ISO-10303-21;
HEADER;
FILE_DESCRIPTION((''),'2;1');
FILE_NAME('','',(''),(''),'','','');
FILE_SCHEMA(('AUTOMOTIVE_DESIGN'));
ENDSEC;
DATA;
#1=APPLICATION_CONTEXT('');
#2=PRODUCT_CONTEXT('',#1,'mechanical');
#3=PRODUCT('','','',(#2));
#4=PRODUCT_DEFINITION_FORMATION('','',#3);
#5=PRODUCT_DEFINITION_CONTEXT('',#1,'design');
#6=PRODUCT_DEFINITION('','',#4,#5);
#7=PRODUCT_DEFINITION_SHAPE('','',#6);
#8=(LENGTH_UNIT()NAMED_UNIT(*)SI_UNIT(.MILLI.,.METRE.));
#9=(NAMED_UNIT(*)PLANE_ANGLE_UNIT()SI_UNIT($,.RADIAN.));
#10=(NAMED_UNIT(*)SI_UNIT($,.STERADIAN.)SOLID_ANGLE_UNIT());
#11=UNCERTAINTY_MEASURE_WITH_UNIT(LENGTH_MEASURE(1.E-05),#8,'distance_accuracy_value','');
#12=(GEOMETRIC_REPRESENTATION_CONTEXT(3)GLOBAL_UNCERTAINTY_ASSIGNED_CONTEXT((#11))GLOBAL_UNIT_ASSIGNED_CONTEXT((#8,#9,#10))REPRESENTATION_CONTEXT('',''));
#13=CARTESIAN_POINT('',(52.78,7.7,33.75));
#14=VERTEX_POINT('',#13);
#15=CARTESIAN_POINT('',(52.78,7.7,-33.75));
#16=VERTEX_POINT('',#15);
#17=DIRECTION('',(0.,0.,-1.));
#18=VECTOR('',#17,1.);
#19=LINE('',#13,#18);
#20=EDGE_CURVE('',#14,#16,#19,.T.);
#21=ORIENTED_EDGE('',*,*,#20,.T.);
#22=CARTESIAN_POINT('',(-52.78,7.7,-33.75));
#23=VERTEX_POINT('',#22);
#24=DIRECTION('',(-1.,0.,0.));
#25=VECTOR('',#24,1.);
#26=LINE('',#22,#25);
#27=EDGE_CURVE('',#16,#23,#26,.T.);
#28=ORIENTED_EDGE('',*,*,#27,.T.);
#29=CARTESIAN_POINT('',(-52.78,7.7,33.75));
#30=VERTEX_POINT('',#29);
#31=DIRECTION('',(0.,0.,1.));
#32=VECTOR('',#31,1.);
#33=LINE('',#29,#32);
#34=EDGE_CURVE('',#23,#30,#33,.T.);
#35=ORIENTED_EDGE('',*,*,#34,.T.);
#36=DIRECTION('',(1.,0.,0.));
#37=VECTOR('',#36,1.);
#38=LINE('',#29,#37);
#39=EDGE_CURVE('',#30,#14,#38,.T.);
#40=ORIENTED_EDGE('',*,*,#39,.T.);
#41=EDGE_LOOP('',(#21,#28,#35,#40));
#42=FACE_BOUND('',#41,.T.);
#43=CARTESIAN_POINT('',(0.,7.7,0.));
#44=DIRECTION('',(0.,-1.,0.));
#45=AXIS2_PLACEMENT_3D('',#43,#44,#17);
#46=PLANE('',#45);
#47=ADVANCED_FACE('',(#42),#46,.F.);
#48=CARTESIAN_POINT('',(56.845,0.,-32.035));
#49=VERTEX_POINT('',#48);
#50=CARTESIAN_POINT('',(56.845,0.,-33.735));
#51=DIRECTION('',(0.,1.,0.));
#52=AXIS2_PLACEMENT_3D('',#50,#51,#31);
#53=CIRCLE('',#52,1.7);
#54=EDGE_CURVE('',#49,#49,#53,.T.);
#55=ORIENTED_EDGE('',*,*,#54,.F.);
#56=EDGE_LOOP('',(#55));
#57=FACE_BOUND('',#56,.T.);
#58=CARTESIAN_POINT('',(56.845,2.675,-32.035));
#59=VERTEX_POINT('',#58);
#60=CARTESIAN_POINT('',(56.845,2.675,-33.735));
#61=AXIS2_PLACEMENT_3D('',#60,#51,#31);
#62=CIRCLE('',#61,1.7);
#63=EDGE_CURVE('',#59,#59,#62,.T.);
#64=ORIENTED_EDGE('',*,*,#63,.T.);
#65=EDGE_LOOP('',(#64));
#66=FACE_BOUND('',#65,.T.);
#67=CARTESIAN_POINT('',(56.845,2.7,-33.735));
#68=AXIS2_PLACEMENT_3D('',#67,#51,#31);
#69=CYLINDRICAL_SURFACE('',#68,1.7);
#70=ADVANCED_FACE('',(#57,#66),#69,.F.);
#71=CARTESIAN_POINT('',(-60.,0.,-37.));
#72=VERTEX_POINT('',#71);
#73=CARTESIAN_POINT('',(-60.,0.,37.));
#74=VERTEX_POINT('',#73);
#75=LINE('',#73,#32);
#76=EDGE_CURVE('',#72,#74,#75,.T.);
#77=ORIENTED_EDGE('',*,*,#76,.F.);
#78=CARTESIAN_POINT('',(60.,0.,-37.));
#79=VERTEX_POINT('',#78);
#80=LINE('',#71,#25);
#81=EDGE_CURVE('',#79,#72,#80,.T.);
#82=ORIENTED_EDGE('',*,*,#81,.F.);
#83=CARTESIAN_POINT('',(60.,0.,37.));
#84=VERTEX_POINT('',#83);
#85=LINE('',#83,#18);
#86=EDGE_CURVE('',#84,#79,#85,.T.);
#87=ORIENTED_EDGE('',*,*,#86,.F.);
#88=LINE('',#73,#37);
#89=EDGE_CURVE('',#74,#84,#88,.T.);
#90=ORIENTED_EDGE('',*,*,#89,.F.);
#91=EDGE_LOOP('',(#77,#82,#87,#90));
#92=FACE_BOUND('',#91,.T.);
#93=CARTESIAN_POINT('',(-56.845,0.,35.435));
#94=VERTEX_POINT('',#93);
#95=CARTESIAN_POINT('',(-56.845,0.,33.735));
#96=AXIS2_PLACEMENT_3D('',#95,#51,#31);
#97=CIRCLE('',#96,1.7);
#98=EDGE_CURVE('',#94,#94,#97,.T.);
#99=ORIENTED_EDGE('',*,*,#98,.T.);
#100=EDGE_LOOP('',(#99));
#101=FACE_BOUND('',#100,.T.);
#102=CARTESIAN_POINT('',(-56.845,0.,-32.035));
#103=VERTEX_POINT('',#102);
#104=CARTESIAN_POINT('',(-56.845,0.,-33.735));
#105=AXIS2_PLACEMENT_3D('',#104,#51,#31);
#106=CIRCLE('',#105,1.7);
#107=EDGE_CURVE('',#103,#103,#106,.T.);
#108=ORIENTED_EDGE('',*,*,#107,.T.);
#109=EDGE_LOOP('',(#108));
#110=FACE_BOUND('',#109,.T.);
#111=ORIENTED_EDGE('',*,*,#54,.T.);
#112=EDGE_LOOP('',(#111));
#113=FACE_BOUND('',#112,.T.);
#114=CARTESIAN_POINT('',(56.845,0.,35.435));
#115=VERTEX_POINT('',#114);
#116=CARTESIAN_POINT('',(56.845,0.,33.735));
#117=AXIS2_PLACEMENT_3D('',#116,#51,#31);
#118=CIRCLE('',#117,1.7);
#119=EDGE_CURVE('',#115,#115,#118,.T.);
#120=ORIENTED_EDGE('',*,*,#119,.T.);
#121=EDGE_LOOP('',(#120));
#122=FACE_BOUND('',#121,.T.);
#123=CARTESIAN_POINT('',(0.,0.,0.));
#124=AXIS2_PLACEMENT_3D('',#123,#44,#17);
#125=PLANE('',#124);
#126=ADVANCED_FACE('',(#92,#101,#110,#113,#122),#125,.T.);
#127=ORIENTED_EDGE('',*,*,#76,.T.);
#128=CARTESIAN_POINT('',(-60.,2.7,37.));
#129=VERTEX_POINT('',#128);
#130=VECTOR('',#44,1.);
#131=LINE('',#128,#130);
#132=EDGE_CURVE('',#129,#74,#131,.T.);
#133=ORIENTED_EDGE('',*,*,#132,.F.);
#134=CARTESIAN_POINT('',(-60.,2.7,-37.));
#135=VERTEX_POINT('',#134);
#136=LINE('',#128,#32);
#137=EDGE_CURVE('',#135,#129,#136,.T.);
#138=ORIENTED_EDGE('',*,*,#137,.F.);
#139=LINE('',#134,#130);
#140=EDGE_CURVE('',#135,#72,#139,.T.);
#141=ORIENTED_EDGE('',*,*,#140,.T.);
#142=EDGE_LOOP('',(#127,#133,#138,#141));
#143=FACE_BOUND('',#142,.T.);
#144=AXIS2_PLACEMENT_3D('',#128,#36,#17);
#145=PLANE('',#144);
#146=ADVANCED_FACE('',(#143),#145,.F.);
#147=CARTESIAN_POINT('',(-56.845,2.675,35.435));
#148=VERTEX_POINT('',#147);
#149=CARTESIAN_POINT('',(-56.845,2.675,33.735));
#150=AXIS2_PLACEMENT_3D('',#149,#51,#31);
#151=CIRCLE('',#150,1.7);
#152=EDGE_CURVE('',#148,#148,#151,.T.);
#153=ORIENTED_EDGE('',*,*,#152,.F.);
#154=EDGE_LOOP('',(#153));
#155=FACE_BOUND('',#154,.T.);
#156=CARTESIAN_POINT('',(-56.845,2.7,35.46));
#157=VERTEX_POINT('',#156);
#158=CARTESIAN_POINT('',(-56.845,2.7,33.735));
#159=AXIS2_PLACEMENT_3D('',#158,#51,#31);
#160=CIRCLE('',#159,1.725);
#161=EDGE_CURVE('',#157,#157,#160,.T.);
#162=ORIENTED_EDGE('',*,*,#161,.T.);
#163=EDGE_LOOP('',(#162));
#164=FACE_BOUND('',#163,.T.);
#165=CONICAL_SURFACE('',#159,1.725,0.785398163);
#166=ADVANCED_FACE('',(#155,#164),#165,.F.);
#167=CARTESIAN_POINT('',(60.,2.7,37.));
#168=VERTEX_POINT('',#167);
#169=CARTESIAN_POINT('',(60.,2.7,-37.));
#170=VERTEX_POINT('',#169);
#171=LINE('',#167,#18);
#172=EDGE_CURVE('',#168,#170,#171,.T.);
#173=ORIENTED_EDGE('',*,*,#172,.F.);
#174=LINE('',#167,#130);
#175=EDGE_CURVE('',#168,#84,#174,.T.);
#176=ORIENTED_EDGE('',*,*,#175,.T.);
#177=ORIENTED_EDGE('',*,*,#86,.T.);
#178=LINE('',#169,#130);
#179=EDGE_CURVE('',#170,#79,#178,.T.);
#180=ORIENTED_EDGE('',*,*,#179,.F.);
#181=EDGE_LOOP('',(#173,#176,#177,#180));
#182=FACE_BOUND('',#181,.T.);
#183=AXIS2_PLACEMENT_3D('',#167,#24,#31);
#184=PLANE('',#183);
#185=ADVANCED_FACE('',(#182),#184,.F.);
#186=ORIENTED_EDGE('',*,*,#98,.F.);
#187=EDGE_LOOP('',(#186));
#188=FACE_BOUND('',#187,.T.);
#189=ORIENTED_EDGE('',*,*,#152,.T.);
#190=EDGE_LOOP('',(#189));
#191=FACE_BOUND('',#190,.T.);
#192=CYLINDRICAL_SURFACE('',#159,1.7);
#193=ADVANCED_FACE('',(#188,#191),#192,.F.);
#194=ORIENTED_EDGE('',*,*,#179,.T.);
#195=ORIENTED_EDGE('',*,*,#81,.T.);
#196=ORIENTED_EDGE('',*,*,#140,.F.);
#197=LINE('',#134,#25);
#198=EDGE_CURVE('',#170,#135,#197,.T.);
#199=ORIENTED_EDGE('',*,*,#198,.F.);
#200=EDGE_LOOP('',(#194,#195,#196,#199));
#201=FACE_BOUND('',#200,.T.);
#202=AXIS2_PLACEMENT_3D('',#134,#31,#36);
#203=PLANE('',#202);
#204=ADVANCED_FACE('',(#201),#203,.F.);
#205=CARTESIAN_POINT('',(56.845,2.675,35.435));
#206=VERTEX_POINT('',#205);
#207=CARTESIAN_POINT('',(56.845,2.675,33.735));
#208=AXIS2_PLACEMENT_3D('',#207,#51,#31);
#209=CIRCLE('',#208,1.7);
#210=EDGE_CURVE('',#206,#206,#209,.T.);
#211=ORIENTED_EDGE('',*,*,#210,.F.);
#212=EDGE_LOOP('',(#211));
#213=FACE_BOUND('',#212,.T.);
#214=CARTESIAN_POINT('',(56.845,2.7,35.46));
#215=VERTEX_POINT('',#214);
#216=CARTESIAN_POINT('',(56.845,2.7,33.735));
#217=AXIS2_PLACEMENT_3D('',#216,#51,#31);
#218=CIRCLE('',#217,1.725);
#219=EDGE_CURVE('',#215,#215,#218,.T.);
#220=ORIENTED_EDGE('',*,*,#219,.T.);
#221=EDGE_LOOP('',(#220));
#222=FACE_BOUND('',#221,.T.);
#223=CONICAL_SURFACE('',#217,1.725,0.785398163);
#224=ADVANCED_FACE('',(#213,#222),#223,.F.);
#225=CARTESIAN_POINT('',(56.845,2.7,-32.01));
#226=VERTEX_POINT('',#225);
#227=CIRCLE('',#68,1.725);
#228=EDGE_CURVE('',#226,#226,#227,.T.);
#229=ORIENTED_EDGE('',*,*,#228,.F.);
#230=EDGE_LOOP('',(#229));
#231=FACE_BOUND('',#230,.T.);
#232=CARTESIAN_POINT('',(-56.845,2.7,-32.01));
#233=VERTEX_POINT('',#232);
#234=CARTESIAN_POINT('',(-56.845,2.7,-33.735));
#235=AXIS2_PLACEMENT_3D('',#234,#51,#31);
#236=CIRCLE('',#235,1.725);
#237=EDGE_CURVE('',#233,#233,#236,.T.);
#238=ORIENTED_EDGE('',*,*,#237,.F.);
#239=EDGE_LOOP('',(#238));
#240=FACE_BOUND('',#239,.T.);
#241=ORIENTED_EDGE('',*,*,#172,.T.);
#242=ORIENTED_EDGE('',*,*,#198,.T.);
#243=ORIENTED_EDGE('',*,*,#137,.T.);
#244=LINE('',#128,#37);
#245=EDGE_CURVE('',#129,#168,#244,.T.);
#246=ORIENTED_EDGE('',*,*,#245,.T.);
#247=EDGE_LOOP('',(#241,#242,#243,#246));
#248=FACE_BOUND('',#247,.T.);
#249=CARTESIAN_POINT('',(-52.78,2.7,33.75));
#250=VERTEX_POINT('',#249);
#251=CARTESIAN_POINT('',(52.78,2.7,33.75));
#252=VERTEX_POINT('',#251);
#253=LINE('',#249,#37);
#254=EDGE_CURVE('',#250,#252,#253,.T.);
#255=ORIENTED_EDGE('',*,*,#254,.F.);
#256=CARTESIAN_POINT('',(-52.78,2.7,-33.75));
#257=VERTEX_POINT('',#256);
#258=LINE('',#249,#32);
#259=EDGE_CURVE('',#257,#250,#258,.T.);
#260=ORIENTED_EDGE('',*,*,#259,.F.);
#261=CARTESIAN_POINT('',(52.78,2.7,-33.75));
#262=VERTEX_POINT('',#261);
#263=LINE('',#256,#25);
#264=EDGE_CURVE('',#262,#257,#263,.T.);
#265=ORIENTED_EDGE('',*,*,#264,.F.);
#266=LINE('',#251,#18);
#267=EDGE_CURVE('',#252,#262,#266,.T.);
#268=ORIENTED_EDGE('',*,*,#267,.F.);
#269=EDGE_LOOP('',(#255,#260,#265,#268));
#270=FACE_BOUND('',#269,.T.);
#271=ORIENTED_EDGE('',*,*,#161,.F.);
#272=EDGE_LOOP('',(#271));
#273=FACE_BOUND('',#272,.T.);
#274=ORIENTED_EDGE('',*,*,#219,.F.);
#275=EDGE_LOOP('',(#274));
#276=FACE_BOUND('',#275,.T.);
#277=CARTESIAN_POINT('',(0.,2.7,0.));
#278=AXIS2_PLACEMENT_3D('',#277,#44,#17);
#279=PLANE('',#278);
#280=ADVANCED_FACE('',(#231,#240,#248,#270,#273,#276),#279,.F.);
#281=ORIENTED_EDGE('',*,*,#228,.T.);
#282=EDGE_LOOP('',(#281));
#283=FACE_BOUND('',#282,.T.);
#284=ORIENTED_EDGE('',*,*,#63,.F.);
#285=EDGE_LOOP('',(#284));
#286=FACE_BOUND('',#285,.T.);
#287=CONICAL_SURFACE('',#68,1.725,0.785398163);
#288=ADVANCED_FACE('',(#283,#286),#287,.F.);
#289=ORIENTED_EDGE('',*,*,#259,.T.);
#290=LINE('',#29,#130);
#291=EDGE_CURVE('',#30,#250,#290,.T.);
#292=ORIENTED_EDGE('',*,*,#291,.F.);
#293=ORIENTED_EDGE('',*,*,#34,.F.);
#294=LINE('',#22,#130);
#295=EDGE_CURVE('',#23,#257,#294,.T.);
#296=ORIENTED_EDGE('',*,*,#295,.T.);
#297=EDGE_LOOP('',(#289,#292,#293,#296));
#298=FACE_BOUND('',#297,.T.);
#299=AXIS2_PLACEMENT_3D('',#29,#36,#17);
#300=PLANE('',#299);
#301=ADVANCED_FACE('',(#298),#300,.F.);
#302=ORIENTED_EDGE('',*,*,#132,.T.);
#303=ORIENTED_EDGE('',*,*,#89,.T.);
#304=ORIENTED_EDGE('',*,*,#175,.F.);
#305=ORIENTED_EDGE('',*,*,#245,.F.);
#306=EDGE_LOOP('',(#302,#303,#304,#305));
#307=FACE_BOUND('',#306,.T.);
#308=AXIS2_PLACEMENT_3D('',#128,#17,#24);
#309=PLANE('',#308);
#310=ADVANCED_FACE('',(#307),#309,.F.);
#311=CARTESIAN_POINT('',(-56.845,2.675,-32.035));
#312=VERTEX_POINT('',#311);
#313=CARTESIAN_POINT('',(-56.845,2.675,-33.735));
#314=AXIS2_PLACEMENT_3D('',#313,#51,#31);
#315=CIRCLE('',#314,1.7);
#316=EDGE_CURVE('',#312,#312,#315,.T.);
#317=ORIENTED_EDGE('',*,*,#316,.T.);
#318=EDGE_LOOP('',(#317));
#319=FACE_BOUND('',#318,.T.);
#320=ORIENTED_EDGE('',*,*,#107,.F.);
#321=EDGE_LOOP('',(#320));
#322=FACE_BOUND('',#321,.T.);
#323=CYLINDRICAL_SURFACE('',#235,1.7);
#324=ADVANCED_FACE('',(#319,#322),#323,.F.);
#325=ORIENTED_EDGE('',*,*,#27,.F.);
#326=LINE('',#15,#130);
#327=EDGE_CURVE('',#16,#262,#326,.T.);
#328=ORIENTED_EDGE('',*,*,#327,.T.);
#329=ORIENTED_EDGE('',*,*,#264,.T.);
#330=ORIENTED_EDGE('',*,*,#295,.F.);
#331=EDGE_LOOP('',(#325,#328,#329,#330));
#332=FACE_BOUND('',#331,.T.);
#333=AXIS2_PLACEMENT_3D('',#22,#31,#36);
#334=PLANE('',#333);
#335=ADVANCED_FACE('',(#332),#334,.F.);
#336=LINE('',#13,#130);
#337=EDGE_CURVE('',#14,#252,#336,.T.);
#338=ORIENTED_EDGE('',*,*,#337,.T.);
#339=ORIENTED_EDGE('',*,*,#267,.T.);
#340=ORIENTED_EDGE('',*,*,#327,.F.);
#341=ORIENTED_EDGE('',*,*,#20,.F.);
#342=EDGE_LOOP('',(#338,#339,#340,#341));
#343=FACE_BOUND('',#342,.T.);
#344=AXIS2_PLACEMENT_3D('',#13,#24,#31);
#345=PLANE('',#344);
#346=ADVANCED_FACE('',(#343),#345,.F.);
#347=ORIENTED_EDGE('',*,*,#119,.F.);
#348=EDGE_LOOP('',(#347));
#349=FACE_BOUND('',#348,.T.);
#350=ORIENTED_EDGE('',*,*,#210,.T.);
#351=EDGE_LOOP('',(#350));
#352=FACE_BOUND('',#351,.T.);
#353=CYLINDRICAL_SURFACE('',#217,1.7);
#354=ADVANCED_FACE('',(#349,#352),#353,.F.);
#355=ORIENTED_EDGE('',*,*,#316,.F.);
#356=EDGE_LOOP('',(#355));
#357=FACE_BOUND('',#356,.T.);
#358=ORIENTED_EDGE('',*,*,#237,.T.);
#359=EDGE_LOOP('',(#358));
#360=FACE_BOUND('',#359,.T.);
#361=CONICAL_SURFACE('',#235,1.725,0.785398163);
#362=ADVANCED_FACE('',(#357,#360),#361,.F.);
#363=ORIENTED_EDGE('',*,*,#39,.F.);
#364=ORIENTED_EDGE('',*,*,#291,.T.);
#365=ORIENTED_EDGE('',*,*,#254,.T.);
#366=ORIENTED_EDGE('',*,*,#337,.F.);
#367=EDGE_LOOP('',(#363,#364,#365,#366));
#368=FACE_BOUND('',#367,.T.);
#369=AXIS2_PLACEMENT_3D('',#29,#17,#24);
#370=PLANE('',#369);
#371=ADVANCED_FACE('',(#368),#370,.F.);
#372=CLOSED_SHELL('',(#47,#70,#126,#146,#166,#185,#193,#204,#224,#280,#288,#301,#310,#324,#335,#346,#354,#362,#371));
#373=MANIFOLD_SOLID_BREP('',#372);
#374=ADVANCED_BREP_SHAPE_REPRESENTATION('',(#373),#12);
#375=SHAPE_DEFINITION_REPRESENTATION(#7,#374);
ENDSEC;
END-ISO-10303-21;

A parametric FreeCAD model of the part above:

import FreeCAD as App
import Part
import Sketcher
from FreeCAD import Vector

doc = App.newDocument("Part")
body = doc.addObject("PartDesign::Body", "Body")

# Sketch on XZ plane
sketch1 = body.newObject("Sketcher::SketchObject", "Sketch")
sketch1.AttachmentSupport = (doc.getObject("XZ_Plane"), [""])
sketch1.MapMode = "FlatFace"
sketch1.addGeometry([
    Part.LineSegment(Vector(-60, -37, 0), Vector(-60, 37, 0)),
    Part.LineSegment(Vector(-60, 37, 0), Vector(60, 37, 0)),
    Part.LineSegment(Vector(60, 37, 0), Vector(60, -37, 0)),
    Part.LineSegment(Vector(60, -37, 0), Vector(-60, -37, 0)),
], False)
sketch1.addConstraint([
    Sketcher.Constraint("Coincident", 0, 2, 1, 1),
    Sketcher.Constraint("Coincident", 1, 2, 2, 1),
    Sketcher.Constraint("Coincident", 2, 2, 3, 1),
    Sketcher.Constraint("Coincident", 3, 2, 0, 1),
    Sketcher.Constraint("Vertical", 0),
    Sketcher.Constraint("Horizontal", 1),
    Sketcher.Constraint("Vertical", 2),
    Sketcher.Constraint("Horizontal", 3),
    Sketcher.Constraint("Symmetric", 0, 2, 2, 2, -1, 1),
    Sketcher.Constraint("DistanceX", 1, 1, 1, 2, 120.0),
    Sketcher.Constraint("DistanceY", 0, 1, 0, 2, 74.0),
])
pad1 = body.newObject("PartDesign::Pad", "Pad")
pad1.Profile = sketch1
pad1.Length = 2.7
pad1.Reversed = True

# Sketch on XZ plane
sketch2 = body.newObject("Sketcher::SketchObject", "Sketch001")
sketch2.AttachmentSupport = (doc.getObject("XZ_Plane"), [""])
sketch2.MapMode = "FlatFace"
sketch2.AttachmentOffset = App.Placement(Vector(0, 0, -2.7), App.Rotation())
sketch2.addGeometry([
    Part.LineSegment(Vector(-52.78, -33.75, 0), Vector(-52.78, 33.75, 0)),
    Part.LineSegment(Vector(-52.78, 33.75, 0), Vector(52.78, 33.75, 0)),
    Part.LineSegment(Vector(52.78, 33.75, 0), Vector(52.78, -33.75, 0)),
    Part.LineSegment(Vector(52.78, -33.75, 0), Vector(-52.78, -33.75, 0)),
], False)
sketch2.addConstraint([
    Sketcher.Constraint("Coincident", 0, 2, 1, 1),
    Sketcher.Constraint("Coincident", 1, 2, 2, 1),
    Sketcher.Constraint("Coincident", 2, 2, 3, 1),
    Sketcher.Constraint("Coincident", 3, 2, 0, 1),
    Sketcher.Constraint("Vertical", 0),
    Sketcher.Constraint("Horizontal", 1),
    Sketcher.Constraint("Vertical", 2),
    Sketcher.Constraint("Horizontal", 3),
    Sketcher.Constraint("Symmetric", 0, 2, 2, 2, -1, 1),
    Sketcher.Constraint("DistanceY", 0, 1, 0, 2, 67.5),
    Sketcher.Constraint("DistanceX", 1, 1, 1, 2, 105.56),
])
pad2 = body.newObject("PartDesign::Pad", "Pad001")
pad2.Profile = sketch2
pad2.Length = 5
pad2.Reversed = True

# Sketch on XZ plane
sketch3 = body.newObject("Sketcher::SketchObject", "Sketch002")
sketch3.AttachmentSupport = (doc.getObject("XZ_Plane"), [""])
sketch3.MapMode = "FlatFace"
sketch3.AttachmentOffset = App.Placement(Vector(0, 0, -2.7), App.Rotation())
sketch3.addGeometry([
    Part.Circle(Vector(-56.845, -33.735, 0), Vector(0, 0, 1), 1.7),
    Part.Circle(Vector(56.845, -33.735, 0), Vector(0, 0, 1), 1.7),
    Part.Circle(Vector(56.845, 33.735, 0), Vector(0, 0, 1), 1.7),
    Part.Circle(Vector(-56.845, 33.735, 0), Vector(0, 0, 1), 1.7),
], False)
sketch3.addConstraint([
    Sketcher.Constraint("Equal", 0, 1),
    Sketcher.Constraint("Equal", 1, 2),
    Sketcher.Constraint("Equal", 2, 3),
    Sketcher.Constraint("Symmetric", 0, 3, 2, 3, -1, 1),
    Sketcher.Constraint("Symmetric", 1, 3, 3, 3, -1, 1),
    Sketcher.Constraint("Symmetric", 0, 3, 1, 3, -2),
    Sketcher.Constraint("Diameter", 0, 3.4),
    Sketcher.Constraint("DistanceX", 0, 3, 1, 3, 113.69),
    Sketcher.Constraint("DistanceY", 1, 3, 2, 3, 67.47),
])
doc.recompute()
hole = body.newObject("PartDesign::Hole", "Hole")
hole.Profile = sketch3
hole.ThreadType = "None"
hole.Diameter = 3.4
hole.DepthType = "ThroughAll"
hole.HoleCutType = "Countersink"
hole.HoleCutDiameter = 3.45
hole.HoleCutCountersinkAngle = 90
hole.Reversed = True

doc.recompute()
